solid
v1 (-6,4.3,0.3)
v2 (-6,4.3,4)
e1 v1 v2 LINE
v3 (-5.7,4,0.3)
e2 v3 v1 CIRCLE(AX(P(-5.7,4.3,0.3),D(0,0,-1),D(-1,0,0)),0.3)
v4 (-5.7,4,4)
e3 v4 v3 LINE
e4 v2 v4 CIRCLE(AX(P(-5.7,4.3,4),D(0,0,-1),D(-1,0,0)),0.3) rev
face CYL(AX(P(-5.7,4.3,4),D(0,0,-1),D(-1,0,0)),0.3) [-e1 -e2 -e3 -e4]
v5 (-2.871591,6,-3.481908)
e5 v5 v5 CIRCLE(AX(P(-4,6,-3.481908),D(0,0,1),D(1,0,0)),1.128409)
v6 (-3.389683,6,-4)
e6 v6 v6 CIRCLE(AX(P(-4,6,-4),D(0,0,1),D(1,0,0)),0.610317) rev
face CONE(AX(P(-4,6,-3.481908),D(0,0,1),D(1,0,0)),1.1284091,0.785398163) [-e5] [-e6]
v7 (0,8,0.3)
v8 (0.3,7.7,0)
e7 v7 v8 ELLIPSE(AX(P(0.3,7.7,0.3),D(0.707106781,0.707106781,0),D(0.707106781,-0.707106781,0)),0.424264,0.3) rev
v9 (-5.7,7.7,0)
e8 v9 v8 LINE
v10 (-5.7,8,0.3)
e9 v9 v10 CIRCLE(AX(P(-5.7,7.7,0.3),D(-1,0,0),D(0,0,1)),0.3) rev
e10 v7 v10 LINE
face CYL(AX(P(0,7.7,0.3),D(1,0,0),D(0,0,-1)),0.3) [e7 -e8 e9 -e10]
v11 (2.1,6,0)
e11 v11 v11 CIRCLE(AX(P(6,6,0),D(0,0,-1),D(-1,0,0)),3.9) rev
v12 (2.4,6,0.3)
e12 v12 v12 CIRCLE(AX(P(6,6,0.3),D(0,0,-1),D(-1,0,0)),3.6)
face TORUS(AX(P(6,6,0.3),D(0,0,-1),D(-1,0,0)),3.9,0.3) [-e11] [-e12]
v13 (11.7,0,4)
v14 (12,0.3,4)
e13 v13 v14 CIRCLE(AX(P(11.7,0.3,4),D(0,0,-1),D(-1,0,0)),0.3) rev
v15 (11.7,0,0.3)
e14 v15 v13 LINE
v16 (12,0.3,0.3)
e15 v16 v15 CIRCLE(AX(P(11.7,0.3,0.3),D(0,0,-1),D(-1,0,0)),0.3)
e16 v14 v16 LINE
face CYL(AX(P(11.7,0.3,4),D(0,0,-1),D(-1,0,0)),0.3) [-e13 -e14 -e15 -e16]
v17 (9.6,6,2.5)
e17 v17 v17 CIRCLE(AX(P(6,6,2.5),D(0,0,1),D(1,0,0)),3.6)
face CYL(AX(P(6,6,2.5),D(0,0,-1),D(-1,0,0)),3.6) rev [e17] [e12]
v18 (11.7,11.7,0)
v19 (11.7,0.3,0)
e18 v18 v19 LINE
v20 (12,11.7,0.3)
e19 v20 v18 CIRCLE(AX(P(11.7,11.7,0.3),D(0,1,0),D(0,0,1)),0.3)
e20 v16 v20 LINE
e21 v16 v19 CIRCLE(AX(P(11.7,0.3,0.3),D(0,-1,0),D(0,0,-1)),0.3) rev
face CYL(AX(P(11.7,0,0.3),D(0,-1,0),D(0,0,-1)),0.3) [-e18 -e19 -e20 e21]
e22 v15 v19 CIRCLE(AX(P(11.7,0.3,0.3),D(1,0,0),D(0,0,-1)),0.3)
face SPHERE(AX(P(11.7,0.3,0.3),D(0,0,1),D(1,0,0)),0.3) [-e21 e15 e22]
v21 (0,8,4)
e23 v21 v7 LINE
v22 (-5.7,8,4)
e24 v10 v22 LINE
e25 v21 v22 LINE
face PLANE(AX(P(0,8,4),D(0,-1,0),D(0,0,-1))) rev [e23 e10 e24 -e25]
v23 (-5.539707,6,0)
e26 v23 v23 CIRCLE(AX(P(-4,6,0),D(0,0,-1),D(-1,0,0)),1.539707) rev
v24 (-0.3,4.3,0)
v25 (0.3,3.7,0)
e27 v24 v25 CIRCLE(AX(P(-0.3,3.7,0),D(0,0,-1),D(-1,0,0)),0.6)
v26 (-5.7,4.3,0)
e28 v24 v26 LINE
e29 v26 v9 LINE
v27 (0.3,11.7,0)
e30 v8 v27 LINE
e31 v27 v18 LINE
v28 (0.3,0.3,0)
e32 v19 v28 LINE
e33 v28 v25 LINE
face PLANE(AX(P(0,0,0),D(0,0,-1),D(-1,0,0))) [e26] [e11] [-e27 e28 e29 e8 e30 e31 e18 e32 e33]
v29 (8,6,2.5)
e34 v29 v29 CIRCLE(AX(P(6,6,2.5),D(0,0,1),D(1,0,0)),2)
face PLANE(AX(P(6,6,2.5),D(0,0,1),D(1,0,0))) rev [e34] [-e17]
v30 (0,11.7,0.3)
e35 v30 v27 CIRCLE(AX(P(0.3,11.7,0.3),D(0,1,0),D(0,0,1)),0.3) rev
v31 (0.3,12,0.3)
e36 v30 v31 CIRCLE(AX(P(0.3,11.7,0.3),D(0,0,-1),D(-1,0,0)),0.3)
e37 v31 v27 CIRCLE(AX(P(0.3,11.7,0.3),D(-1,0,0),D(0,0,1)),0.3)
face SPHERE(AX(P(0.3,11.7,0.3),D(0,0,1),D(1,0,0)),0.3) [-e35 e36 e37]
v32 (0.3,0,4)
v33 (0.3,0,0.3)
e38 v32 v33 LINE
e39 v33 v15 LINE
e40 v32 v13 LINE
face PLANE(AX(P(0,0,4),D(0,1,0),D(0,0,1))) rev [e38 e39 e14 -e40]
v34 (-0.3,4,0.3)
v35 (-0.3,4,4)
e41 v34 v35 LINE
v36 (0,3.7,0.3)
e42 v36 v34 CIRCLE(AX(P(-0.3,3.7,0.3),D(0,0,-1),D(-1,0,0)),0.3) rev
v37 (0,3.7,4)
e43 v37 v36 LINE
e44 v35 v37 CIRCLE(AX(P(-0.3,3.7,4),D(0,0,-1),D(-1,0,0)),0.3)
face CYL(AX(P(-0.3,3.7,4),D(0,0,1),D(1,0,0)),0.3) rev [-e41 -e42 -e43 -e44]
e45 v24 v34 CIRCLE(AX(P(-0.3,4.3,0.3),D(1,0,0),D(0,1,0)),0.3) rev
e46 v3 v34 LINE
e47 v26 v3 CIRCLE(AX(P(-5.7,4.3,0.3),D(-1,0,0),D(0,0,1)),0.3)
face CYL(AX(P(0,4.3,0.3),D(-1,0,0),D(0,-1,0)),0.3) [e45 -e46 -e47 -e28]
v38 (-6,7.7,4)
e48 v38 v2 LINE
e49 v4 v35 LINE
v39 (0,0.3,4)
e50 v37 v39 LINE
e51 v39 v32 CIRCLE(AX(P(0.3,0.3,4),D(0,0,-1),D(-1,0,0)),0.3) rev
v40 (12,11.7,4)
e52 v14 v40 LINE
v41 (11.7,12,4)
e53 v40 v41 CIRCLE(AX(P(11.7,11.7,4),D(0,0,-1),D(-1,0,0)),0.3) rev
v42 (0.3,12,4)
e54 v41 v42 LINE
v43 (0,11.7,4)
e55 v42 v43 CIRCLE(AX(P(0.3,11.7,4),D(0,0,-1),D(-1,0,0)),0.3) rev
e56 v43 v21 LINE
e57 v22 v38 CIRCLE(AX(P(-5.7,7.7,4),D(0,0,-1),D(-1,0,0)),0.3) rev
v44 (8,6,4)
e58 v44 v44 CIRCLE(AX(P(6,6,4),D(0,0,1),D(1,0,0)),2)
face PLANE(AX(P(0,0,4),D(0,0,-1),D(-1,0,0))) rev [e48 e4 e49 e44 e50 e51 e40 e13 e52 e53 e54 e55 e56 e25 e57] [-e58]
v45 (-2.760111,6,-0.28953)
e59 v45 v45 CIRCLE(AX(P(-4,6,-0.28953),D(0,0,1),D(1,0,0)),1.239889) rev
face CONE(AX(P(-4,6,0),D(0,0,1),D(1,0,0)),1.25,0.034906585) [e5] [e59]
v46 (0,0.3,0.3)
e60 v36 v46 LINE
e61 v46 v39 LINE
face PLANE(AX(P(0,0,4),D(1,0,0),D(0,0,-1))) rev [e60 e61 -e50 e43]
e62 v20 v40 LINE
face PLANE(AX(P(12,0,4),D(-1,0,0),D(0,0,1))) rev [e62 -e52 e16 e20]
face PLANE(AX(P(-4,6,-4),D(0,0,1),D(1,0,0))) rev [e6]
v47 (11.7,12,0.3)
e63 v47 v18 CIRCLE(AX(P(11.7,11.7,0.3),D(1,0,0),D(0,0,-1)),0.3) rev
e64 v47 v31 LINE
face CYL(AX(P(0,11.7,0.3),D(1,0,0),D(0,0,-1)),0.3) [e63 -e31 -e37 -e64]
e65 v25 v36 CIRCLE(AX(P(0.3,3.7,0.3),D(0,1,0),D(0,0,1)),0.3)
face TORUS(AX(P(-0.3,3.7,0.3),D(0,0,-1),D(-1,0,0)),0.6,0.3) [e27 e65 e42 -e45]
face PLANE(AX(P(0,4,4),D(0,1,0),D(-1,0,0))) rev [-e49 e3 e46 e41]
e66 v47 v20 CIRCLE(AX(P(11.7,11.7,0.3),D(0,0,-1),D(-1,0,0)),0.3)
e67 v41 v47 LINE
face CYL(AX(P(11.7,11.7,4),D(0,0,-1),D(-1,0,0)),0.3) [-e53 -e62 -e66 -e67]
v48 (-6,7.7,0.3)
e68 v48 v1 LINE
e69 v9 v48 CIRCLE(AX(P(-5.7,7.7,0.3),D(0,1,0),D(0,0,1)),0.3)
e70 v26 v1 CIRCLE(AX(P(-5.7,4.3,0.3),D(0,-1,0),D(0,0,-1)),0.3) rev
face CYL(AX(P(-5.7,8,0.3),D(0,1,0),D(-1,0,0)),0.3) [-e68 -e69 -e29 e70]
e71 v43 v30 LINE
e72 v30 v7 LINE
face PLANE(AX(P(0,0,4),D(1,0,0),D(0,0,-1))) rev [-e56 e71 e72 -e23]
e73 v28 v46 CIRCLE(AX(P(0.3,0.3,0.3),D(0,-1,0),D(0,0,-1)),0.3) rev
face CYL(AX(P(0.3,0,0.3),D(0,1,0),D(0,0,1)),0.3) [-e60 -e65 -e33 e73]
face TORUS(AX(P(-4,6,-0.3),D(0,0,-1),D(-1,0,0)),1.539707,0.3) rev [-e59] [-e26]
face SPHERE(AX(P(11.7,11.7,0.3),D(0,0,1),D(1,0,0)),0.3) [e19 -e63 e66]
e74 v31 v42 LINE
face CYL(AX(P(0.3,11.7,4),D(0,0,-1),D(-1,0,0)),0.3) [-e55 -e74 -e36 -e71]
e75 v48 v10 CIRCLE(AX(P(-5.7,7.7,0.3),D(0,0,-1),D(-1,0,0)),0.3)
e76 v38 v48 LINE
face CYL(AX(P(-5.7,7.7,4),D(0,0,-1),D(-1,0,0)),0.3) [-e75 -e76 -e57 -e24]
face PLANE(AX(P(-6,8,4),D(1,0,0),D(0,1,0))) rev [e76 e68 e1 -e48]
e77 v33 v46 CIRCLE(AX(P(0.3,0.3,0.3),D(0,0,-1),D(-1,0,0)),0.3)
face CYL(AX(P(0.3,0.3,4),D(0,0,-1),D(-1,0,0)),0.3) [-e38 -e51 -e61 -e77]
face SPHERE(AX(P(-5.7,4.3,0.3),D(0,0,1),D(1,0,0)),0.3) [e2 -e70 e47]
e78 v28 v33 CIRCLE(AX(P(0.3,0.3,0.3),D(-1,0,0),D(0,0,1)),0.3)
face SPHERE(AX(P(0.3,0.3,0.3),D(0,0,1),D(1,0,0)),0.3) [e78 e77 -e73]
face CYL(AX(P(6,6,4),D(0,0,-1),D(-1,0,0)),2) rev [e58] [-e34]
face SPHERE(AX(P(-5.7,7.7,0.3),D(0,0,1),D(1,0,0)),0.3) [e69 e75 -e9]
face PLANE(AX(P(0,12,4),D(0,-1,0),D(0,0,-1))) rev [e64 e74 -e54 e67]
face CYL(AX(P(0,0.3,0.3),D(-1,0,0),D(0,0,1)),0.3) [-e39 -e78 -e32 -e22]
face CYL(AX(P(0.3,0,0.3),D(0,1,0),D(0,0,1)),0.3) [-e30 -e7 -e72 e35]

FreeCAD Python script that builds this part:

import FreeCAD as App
import Part
import Sketcher
from FreeCAD import Vector
Q = App.Units.Quantity


def edges_at(feature, points):
    """Names of the edges that pass closest to the given points."""
    edges = feature.Shape.Edges
    near = lambda p: min(range(len(edges)), key=lambda i: edges[i].distToShape(Part.Vertex(*p))[0])
    return sorted({f"Edge{near(p) + 1}" for p in points})

doc = App.newDocument("Part")
body = doc.addObject("PartDesign::Body", "Body")

# Sketch on XY plane
sketch1 = body.newObject("Sketcher::SketchObject", "Sketch")
sketch1.AttachmentSupport = (doc.getObject("XY_Plane"), [""])
sketch1.MapMode = "FlatFace"
sketch1.addGeometry([
    Part.LineSegment(Vector(0, 12, 0), Vector(0, 0, 0)),
    Part.LineSegment(Vector(0, 0, 0), Vector(12, 0, 0)),
    Part.LineSegment(Vector(12, 0, 0), Vector(12, 12, 0)),
    Part.LineSegment(Vector(12, 12, 0), Vector(0, 12, 0)),
], False)
sketch1.addConstraint([
    Sketcher.Constraint("Coincident", 0, 2, 1, 1),
    Sketcher.Constraint("Coincident", 1, 2, 2, 1),
    Sketcher.Constraint("Coincident", 2, 2, 3, 1),
    Sketcher.Constraint("Coincident", 3, 2, 0, 1),
    Sketcher.Constraint("Vertical", 0),
    Sketcher.Constraint("Horizontal", 1),
    Sketcher.Constraint("Vertical", 2),
    Sketcher.Constraint("Horizontal", 3),
    Sketcher.Constraint("Coincident", 0, 2, -1, 1),
    Sketcher.Constraint("Equal", 3, 0),
    Sketcher.Constraint("DistanceX", 1, 1, 1, 2, Q("12 mm")),
])
pad1 = body.newObject("PartDesign::Pad", "Pad")
pad1.Profile = sketch1
pad1.Length = 4

# Sketch on XY plane
sketch2 = body.newObject("Sketcher::SketchObject", "Sketch001")
sketch2.AttachmentSupport = (doc.getObject("XY_Plane"), [""])
sketch2.MapMode = "FlatFace"
sketch2.addGeometry(Part.Circle(Vector(6, 6, 0), Vector(0, 0, 1), 2), False)
sketch2.addConstraint([
    Sketcher.Constraint("Diameter", 0, Q("4 mm")),
    Sketcher.Constraint("DistanceX", -1, 1, 0, 3, Q("6 mm")),
    Sketcher.Constraint("DistanceY", -1, 1, 0, 3, Q("6 mm")),
])
pocket1 = body.newObject("PartDesign::Pocket", "Pocket")
pocket1.Profile = sketch2
pocket1.Length = 4
pocket1.Reversed = True

# Sketch on XY plane
sketch3 = body.newObject("Sketcher::SketchObject", "Sketch002")
sketch3.AttachmentSupport = (doc.getObject("XY_Plane"), [""])
sketch3.MapMode = "FlatFace"
sketch3.addGeometry(Part.Circle(Vector(6, 6, 0), Vector(0, 0, 1), 3.6), False)
sketch3.addConstraint([
    Sketcher.Constraint("Diameter", 0, Q("7.2 mm")),
    Sketcher.Constraint("DistanceX", -1, 1, 0, 3, Q("6 mm")),
    Sketcher.Constraint("DistanceY", -1, 1, 0, 3, Q("6 mm")),
])
pocket2 = body.newObject("PartDesign::Pocket", "Pocket001")
pocket2.Profile = sketch3
pocket2.Length = 2.5
pocket2.Reversed = True

# Sketch on XY plane
sketch4 = body.newObject("Sketcher::SketchObject", "Sketch003")
sketch4.AttachmentSupport = (doc.getObject("XY_Plane"), [""])
sketch4.MapMode = "FlatFace"
sketch4.addGeometry([
    Part.LineSegment(Vector(-6, 8, 0), Vector(-6, 4, 0)),
    Part.LineSegment(Vector(-6, 4, 0), Vector(0, 4, 0)),
    Part.LineSegment(Vector(0, 4, 0), Vector(0, 8, 0)),
    Part.LineSegment(Vector(0, 8, 0), Vector(-6, 8, 0)),
], False)
sketch4.addConstraint([
    Sketcher.Constraint("Coincident", 0, 2, 1, 1),
    Sketcher.Constraint("Coincident", 1, 2, 2, 1),
    Sketcher.Constraint("Coincident", 2, 2, 3, 1),
    Sketcher.Constraint("Coincident", 3, 2, 0, 1),
    Sketcher.Constraint("Vertical", 0),
    Sketcher.Constraint("Horizontal", 1),
    Sketcher.Constraint("Vertical", 2),
    Sketcher.Constraint("Horizontal", 3),
    Sketcher.Constraint("PointOnObject", 1, 2, -2),
    Sketcher.Constraint("DistanceX", 1, 1, 1, 2, Q("6 mm")),
    Sketcher.Constraint("DistanceY", 0, 2, 0, 1, Q("4 mm")),
    Sketcher.Constraint("DistanceY", -1, 1, 0, 2, Q("4 mm")),
])
pad2 = body.newObject("PartDesign::Pad", "Pad001")
pad2.Profile = sketch4
pad2.Length = 4

# Sketch on XY plane
sketch5 = body.newObject("Sketcher::SketchObject", "Sketch004")
sketch5.AttachmentSupport = (doc.getObject("XY_Plane"), [""])
sketch5.MapMode = "FlatFace"
sketch5.addGeometry(Part.Circle(Vector(-4, 6, 0), Vector(0, 0, 1), 1.2), False)
sketch5.addConstraint([
    Sketcher.Constraint("Diameter", 0, Q("2.5 mm")),
    Sketcher.Constraint("DistanceX", 0, 3, -1, 1, Q("4 mm")),
    Sketcher.Constraint("DistanceY", -1, 1, 0, 3, Q("6 mm")),
])
pad3 = body.newObject("PartDesign::Pad", "Pad002")
pad3.Profile = sketch5
pad3.Length = 4
pad3.Reversed = True
pad3.TaperAngle = -2
doc.recompute()

chamfer = body.newObject("PartDesign::Chamfer", "Chamfer")
chamfer.Base = (pad3, edges_at(pad3, [(-5.11, 6, -4)]))
chamfer.ChamferType = "Two distances"
chamfer.Size = 0.518408
chamfer.Size2 = 0.5
doc.recompute()

fillet = body.newObject("PartDesign::Fillet", "Fillet")
fillet.Base = (chamfer, edges_at(chamfer, [
    (2.4, 6, 0),
    (0, 2, 0),
    (0, 4, 2),
    (-3, 8, 0),
    (-6, 6, 0),
    (-6, 8, 2),
    (-3, 4, 0),
    (-6, 4, 2),
    (-5.25, 6, 0),
    (6, 12, 0),
    (12, 6, 0),
    (6, 0, 0),
    (0, 10, 0),
    (0, 12, 2),
    (12, 12, 2),
    (12, 0, 2),
    (0, 0, 2),
]))
fillet.Radius = 0.3

doc.recompute()
